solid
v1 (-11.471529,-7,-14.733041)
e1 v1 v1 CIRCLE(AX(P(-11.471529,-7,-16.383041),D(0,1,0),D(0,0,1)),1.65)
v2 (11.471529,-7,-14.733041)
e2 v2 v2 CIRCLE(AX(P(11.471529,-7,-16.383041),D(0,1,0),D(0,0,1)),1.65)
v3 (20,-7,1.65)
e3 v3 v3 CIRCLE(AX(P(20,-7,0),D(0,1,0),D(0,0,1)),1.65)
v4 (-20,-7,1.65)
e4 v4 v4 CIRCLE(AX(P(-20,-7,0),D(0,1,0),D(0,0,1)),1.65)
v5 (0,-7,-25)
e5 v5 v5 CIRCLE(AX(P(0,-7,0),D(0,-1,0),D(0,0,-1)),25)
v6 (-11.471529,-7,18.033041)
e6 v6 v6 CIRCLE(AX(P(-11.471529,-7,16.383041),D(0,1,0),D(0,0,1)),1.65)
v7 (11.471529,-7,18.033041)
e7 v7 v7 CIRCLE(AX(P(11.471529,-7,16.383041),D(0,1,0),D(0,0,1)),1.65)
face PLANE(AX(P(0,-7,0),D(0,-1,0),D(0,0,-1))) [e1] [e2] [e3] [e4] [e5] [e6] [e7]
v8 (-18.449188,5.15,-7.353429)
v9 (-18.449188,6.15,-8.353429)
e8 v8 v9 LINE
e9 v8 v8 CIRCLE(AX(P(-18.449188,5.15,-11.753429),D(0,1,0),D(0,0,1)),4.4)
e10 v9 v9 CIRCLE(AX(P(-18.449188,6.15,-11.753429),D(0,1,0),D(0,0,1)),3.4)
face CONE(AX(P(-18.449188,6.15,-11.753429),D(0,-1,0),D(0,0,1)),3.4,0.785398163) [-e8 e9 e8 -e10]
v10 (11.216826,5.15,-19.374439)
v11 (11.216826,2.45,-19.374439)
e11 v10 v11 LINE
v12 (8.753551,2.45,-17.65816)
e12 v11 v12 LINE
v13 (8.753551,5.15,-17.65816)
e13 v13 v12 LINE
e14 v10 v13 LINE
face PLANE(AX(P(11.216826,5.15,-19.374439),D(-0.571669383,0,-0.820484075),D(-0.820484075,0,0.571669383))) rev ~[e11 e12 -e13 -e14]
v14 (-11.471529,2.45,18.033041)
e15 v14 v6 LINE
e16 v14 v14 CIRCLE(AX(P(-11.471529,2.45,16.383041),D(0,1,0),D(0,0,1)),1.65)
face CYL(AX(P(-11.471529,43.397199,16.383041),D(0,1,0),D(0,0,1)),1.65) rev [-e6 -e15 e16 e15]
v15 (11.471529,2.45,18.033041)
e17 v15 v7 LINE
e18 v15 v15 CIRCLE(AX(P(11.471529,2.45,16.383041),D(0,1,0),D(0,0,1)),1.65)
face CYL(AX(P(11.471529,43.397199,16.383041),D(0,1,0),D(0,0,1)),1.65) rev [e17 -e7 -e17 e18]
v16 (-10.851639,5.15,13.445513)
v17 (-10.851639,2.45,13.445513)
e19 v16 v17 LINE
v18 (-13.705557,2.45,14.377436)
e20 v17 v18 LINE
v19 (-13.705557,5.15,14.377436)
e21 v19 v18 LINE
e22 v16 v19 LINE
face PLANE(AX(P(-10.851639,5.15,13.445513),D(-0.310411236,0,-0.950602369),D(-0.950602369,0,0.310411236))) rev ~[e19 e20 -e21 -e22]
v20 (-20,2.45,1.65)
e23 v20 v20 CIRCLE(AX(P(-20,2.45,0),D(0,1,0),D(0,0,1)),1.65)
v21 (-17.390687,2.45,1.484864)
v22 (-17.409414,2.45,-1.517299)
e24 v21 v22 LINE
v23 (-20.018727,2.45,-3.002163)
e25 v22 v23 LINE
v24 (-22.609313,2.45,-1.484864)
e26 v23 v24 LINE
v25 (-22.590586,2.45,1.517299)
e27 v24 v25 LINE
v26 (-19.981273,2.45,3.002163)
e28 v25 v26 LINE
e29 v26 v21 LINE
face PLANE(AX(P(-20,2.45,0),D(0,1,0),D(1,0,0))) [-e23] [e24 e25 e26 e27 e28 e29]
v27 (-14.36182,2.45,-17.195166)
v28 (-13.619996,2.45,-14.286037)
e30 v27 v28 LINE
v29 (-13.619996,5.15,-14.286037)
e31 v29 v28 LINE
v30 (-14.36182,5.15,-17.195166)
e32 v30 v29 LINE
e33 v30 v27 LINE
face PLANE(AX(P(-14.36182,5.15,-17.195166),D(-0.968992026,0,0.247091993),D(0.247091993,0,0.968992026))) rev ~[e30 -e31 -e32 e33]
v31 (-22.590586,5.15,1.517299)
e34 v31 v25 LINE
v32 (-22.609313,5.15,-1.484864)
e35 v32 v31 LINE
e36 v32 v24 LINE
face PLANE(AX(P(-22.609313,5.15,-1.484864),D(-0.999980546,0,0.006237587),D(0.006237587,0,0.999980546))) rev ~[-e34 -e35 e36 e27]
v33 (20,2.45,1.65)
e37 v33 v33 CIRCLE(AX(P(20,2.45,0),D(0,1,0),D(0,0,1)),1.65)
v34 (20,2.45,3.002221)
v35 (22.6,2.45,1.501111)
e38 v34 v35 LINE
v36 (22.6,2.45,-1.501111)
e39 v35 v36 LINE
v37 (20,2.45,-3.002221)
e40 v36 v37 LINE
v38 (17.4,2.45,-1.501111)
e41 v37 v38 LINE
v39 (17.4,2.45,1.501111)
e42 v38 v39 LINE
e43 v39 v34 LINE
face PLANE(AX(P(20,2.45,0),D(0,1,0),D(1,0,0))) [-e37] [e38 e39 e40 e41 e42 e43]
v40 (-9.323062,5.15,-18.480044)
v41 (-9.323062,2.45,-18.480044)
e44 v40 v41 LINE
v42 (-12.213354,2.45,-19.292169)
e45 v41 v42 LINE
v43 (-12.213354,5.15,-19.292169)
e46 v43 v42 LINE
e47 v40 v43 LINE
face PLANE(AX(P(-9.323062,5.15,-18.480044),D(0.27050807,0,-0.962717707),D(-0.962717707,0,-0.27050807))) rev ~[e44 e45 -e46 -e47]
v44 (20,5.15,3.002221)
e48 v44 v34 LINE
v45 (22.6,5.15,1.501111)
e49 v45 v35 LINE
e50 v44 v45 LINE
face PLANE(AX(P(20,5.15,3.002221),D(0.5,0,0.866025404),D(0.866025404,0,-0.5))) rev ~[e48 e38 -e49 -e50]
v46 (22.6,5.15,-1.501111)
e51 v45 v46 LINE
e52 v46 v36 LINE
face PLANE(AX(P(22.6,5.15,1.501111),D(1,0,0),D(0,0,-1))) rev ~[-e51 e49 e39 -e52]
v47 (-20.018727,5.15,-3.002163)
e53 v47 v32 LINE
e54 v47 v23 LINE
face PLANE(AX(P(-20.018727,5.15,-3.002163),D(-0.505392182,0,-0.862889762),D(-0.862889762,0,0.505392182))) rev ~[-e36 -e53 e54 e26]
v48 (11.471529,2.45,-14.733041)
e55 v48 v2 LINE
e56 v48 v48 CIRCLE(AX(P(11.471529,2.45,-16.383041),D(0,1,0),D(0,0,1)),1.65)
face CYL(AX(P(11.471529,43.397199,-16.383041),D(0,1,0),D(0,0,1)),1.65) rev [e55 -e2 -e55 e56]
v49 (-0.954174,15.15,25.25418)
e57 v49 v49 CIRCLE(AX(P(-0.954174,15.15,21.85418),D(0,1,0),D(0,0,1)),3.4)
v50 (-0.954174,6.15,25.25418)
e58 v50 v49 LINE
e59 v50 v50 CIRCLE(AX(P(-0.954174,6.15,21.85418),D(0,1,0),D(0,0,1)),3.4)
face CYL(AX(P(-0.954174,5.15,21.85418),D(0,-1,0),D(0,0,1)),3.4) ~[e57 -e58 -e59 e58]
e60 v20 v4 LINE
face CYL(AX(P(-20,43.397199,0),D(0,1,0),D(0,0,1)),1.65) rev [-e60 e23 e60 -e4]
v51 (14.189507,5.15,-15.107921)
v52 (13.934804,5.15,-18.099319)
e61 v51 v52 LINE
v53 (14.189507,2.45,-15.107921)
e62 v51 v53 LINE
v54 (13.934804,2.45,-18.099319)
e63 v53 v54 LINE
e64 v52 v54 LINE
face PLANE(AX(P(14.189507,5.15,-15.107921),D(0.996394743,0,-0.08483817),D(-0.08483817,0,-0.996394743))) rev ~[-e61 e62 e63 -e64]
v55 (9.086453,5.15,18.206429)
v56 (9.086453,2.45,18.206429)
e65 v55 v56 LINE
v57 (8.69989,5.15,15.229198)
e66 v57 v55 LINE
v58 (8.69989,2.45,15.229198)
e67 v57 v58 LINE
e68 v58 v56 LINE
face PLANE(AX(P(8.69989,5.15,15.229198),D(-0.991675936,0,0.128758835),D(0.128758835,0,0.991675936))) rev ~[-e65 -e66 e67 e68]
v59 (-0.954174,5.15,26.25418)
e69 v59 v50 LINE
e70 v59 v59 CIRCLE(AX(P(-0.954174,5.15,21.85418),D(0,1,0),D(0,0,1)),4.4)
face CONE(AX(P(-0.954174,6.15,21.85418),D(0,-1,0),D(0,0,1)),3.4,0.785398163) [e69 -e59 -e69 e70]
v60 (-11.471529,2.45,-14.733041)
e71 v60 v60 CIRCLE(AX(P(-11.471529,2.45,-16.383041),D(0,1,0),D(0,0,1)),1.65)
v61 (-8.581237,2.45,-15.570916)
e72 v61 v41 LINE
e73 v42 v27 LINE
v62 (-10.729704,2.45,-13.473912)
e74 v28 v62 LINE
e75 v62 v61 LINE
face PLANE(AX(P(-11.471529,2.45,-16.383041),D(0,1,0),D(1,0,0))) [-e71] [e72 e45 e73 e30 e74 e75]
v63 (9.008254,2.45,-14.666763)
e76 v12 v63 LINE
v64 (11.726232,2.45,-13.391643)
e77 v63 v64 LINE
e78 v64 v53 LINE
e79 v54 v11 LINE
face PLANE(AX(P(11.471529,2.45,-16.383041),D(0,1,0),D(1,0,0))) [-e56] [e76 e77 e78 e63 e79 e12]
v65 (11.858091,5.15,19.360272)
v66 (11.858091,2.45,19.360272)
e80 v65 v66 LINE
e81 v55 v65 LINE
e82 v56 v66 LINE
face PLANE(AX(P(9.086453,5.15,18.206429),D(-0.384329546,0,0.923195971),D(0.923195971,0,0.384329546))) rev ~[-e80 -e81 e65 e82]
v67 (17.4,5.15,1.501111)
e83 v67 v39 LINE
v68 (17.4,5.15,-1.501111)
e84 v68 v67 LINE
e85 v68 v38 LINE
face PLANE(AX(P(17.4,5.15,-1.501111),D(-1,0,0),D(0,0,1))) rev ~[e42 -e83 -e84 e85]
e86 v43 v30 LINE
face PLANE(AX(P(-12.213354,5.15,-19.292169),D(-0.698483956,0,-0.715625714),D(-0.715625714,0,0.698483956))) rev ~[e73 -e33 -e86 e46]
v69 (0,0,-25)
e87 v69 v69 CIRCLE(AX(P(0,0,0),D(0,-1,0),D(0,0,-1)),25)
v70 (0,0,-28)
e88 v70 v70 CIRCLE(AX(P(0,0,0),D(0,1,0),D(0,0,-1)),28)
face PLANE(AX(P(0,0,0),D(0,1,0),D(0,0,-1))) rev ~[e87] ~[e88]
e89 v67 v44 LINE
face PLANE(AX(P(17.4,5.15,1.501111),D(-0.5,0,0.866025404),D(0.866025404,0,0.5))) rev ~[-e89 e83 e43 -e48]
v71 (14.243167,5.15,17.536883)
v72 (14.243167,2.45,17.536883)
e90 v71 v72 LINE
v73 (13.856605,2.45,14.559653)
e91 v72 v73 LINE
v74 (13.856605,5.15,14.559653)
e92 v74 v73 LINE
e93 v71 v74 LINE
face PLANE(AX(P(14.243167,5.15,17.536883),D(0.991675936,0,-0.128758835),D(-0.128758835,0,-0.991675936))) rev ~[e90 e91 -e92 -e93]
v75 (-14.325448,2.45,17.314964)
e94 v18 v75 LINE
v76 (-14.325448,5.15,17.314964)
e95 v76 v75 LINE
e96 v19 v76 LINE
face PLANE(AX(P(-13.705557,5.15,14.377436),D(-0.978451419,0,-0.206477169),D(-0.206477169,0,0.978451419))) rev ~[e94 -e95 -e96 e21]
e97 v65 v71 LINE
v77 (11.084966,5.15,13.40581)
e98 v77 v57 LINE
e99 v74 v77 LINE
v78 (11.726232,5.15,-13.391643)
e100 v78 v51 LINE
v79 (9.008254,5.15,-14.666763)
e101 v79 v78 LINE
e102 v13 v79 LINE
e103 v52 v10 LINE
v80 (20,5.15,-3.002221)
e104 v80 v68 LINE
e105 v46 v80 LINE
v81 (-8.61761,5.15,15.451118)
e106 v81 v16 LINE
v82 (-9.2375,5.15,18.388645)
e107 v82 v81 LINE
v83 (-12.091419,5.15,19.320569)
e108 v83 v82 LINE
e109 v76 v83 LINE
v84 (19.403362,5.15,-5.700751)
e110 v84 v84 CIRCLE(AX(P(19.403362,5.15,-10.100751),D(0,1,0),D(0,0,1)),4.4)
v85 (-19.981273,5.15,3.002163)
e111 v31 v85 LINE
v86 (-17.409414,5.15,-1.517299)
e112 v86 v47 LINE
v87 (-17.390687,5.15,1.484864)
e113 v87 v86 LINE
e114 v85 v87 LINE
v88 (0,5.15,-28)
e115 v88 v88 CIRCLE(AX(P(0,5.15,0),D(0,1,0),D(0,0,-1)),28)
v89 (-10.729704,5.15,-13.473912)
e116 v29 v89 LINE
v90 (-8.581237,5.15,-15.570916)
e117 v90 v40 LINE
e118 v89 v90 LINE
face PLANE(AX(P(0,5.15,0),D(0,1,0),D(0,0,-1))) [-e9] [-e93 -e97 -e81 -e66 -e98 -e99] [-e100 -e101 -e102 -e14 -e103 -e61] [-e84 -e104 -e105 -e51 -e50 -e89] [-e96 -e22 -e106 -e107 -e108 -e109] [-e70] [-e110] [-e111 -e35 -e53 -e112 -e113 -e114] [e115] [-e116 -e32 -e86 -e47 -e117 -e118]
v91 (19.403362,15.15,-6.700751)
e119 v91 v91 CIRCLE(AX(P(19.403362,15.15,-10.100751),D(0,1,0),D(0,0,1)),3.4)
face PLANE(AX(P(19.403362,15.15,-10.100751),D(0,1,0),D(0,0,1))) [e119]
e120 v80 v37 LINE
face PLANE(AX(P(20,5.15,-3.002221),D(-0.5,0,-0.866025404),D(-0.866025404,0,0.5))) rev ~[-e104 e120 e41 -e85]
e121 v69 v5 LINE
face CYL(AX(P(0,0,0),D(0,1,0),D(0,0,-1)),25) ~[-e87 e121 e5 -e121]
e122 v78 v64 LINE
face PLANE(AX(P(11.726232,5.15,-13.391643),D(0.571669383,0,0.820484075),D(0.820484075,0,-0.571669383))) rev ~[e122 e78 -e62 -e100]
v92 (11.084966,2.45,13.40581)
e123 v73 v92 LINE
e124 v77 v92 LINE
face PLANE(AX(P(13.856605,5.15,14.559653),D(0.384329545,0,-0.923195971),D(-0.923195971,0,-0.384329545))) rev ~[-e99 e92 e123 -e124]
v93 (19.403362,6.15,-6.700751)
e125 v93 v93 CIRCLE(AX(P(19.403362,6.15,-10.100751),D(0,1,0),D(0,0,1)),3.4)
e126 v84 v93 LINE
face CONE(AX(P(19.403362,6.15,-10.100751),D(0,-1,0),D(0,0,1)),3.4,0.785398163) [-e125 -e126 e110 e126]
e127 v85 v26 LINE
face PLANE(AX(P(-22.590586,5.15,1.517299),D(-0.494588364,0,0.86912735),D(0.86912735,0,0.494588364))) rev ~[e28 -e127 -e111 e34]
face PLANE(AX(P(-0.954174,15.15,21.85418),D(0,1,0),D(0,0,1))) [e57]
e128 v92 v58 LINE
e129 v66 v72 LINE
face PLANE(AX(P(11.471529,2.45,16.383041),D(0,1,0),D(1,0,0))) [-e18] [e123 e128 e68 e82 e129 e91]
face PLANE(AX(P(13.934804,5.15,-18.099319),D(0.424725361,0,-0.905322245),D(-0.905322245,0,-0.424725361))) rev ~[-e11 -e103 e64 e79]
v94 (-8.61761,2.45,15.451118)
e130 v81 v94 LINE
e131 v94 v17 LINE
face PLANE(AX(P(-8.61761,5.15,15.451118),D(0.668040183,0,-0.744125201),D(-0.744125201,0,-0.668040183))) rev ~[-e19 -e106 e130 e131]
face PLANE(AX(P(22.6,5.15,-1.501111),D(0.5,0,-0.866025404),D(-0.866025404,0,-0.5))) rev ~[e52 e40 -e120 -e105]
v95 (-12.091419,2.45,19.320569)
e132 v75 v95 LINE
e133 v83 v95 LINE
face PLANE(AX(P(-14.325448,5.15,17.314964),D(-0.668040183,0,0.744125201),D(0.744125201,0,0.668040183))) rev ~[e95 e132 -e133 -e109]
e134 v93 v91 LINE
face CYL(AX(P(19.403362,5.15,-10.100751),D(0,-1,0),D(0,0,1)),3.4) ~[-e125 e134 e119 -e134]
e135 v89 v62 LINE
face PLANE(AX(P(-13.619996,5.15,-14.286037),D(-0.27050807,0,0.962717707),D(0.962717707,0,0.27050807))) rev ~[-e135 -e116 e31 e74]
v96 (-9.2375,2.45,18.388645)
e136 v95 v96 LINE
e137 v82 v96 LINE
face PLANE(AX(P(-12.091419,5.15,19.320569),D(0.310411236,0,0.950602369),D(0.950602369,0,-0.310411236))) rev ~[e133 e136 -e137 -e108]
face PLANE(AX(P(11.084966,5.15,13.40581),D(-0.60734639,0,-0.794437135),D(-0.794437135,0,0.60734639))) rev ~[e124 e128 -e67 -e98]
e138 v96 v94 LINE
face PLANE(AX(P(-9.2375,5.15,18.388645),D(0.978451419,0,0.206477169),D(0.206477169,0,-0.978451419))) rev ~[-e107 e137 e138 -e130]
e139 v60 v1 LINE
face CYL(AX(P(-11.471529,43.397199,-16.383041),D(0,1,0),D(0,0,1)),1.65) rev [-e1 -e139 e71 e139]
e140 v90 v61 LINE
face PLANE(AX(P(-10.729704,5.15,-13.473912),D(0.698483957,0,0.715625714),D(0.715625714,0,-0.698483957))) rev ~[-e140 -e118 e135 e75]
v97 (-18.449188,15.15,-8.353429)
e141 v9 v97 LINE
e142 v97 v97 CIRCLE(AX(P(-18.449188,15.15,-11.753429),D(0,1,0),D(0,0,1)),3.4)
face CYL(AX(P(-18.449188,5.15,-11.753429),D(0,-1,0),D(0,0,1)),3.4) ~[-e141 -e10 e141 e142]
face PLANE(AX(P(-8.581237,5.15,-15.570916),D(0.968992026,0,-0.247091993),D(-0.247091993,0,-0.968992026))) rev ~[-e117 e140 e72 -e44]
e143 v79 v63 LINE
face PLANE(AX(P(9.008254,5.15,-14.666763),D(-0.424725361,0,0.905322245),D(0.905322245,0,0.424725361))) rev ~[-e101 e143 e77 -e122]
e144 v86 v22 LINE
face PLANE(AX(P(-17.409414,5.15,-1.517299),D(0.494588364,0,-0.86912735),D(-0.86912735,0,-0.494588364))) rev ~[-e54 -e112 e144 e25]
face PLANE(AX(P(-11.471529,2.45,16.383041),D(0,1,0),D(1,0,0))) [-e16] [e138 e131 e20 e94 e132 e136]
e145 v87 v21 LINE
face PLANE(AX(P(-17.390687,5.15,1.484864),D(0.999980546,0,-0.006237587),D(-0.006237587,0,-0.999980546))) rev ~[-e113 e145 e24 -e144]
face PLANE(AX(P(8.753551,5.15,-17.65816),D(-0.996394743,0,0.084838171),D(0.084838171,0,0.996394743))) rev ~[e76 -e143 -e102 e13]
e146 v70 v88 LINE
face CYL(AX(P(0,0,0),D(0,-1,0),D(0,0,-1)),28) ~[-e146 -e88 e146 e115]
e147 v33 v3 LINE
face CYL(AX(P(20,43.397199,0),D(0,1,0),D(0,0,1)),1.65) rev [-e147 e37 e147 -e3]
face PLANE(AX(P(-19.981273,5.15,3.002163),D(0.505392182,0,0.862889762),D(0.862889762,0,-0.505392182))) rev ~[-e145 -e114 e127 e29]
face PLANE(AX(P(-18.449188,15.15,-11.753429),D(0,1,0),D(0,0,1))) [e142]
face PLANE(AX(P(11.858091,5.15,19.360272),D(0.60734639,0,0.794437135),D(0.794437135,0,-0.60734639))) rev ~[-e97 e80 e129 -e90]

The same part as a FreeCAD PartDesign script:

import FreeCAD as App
import Part
import Sketcher
from FreeCAD import Vector
Q = App.Units.Quantity


def edges_at(feature, points):
    """Names of the edges that pass closest to the given points."""
    edges = feature.Shape.Edges
    near = lambda p: min(range(len(edges)), key=lambda i: edges[i].distToShape(Part.Vertex(*p))[0])
    return sorted({f"Edge{near(p) + 1}" for p in points})


def add_polygon(sketch, points):
    """Adds a closed chain of lines whose ends are joined by coincident constraints."""
    first, n = sketch.GeometryCount, len(points)
    for a, b in zip(points, points[1:] + points[:1]):
        sketch.addGeometry(Part.LineSegment(App.Vector(*a, 0), App.Vector(*b, 0)), False)
    for i in range(n):
        sketch.addConstraint(Sketcher.Constraint("Coincident", first + i, 2, first + (i + 1) % n, 1))

doc = App.newDocument("Part")
body = doc.addObject("PartDesign::Body", "Body")

# Sketch on XZ plane
sketch1 = doc.addObject("Sketcher::SketchObject", "Sketch")
body.addObject(sketch1)
sketch1.AttachmentSupport = (doc.XZ_Plane, [""])
sketch1.MapMode = "FlatFace"
sketch1.addGeometry(Part.Circle(Vector(0, 0, 0), Vector(0, 0, 1), 28), False)
sketch1.addConstraint([
    Sketcher.Constraint("Coincident", 0, 3, -1, 1),
    Sketcher.Constraint("Diameter", 0, 56.0),
])
pad1 = doc.addObject("PartDesign::Pad", "Pad")
body.addObject(pad1)
pad1.Profile = sketch1
pad1.Length = 5.15
pad1.Reversed = True

# Sketch on XZ plane
sketch2 = doc.addObject("Sketcher::SketchObject", "Sketch001")
body.addObject(sketch2)
sketch2.AttachmentSupport = (doc.XZ_Plane, [""])
sketch2.MapMode = "FlatFace"
sketch2.addGeometry(Part.Circle(Vector(0, 0, 0), Vector(0, 0, 1), 25), False)
sketch2.addConstraint([
    Sketcher.Constraint("Coincident", 0, 3, -1, 1),
    Sketcher.Constraint("Diameter", 0, 50.0),
])
pad2 = doc.addObject("PartDesign::Pad", "Pad001")
body.addObject(pad2)
pad2.Profile = sketch2
pad2.Length = 7

# Sketch on XZ plane
sketch3 = doc.addObject("Sketcher::SketchObject", "Sketch002")
body.addObject(sketch3)
sketch3.AttachmentSupport = (doc.XZ_Plane, [""])
sketch3.MapMode = "FlatFace"
sketch3.AttachmentOffset = App.Placement(Vector(0, 0, -5.15), App.Rotation())
sketch3.addGeometry([
    Part.Circle(Vector(-0.954174, 21.85418, 0), Vector(0, 0, 1), 3.4),
    Part.Circle(Vector(-18.449188, -11.753429, 0), Vector(0, 0, 1), 3.4),
    Part.Circle(Vector(19.403362, -10.100751, 0), Vector(0, 0, 1), 3.4),
], False)
sketch3.addConstraint([
    Sketcher.Constraint("Equal", 0, 1),
    Sketcher.Constraint("Equal", 1, 2),
    Sketcher.Constraint("Diameter", 0, 6.8),
    Sketcher.Constraint("DistanceY", -1, 1, 0, 3, 21.85418),
    Sketcher.Constraint("DistanceY", 1, 3, -1, 1, 11.753429),
    Sketcher.Constraint("DistanceX", -1, 1, 2, 3, 19.403362),
    Sketcher.Constraint("DistanceY", 2, 3, -1, 1, 10.100751),
    Sketcher.Constraint("DistanceX", 1, 3, 2, 3, 37.85255),
    Sketcher.Constraint("DistanceX", 0, 3, -1, 1, 0.954174),
])
pad3 = doc.addObject("PartDesign::Pad", "Pad002")
body.addObject(pad3)
pad3.Profile = sketch3
pad3.Length = 10
pad3.Reversed = True

# Sketch on XZ plane
sketch4 = doc.addObject("Sketcher::SketchObject", "Sketch003")
body.addObject(sketch4)
sketch4.AttachmentSupport = (doc.XZ_Plane, [""])
sketch4.MapMode = "FlatFace"
sketch4.addGeometry([
    Part.Circle(Vector(20, 0, 0), Vector(0, 0, 1), 1.65),  # 0
    Part.Circle(Vector(-20, 0, 0), Vector(0, 0, 1), 1.65),  # 1
    Part.Circle(Vector(11.471529, 16.383041, 0), Vector(0, 0, 1), 1.65),  # 2
    Part.Circle(Vector(-11.471529, -16.383041, 0), Vector(0, 0, 1), 1.65),  # 3
    Part.Circle(Vector(11.471529, -16.383041, 0), Vector(0, 0, 1), 1.65),  # 4
    Part.Circle(Vector(-11.471529, 16.383041, 0), Vector(0, 0, 1), 1.65),  # 5
], False)
sketch4.addConstraint([
    Sketcher.Constraint("Equal", 0, 1),
    Sketcher.Constraint("Equal", 1, 2),
    Sketcher.Constraint("Equal", 2, 3),
    Sketcher.Constraint("Equal", 3, 4),
    Sketcher.Constraint("Equal", 4, 5),
    Sketcher.Constraint("Symmetric", 0, 3, 1, 3, -1, 1),
    Sketcher.Constraint("Symmetric", 2, 3, 3, 3, -1, 1),
    Sketcher.Constraint("Symmetric", 4, 3, 5, 3, -1, 1),
    Sketcher.Constraint("Symmetric", 3, 3, 4, 3, -2),
    Sketcher.Constraint("PointOnObject", 0, 3, -1),
    Sketcher.Constraint("Diameter", 0, 3.3),
    Sketcher.Constraint("DistanceX", -1, 1, 0, 3, 20.0),
    Sketcher.Constraint("DistanceX", -1, 1, 2, 3, 11.471529),
    Sketcher.Constraint("DistanceY", -1, 1, 2, 3, 16.383041),
])
pocket1 = doc.addObject("PartDesign::Pocket", "Pocket")
body.addObject(pocket1)
pocket1.Profile = sketch4
pocket1.Type = "ThroughAll"
pocket1.Midplane = True

# Sketch on XZ plane
sketch5 = doc.addObject("Sketcher::SketchObject", "Sketch004")
body.addObject(sketch5)
sketch5.AttachmentSupport = (doc.XZ_Plane, [""])
sketch5.MapMode = "FlatFace"
sketch5.AttachmentOffset = App.Placement(Vector(0, 0, -5.15), App.Rotation())
add_polygon(sketch5, [(11.858091, 19.360272), (14.243167, 17.536883), (13.856605, 14.559653), (11.084966, 13.40581), (8.69989, 15.229198), (9.086453, 18.206429)])  # lines 0-5
add_polygon(sketch5, [(-12.091419, 19.320569), (-9.2375, 18.388645), (-8.61761, 15.451118), (-10.851639, 13.445513), (-13.705557, 14.377436), (-14.325448, 17.314964)])  # lines 6-11
add_polygon(sketch5, [(-22.590586, 1.517299), (-19.981273, 3.002163), (-17.390687, 1.484864), (-17.409414, -1.517299), (-20.018727, -3.002163), (-22.609313, -1.484864)])  # lines 12-17
add_polygon(sketch5, [(20, 3.002221), (22.6, 1.501111), (22.6, -1.501111), (20, -3.002221), (17.4, -1.501111), (17.4, 1.501111)])  # lines 18-23
add_polygon(sketch5, [(9.008254, -14.666763), (11.726232, -13.391643), (14.189507, -15.107921), (13.934804, -18.099319), (11.216826, -19.374439), (8.753551, -17.65816)])  # lines 24-29
add_polygon(sketch5, [(-10.729704, -13.473912), (-8.581237, -15.570916), (-9.323062, -18.480044), (-12.213354, -19.292169), (-14.36182, -17.195166), (-13.619996, -14.286037)])  # lines 30-35
sketch5.addConstraint([
    Sketcher.Constraint("Vertical", 19),
    Sketcher.Constraint("Vertical", 22),
    Sketcher.Constraint("Symmetric", 20, 2, 23, 2, -1),
    Sketcher.Constraint("Parallel", 0, 3),
    Sketcher.Constraint("Parallel", 1, 4),
    Sketcher.Constraint("Parallel", 2, 5),
    Sketcher.Constraint("Parallel", 6, 9),
    Sketcher.Constraint("Parallel", 7, 10),
    Sketcher.Constraint("Parallel", 8, 11),
    Sketcher.Constraint("Parallel", 12, 15),
    Sketcher.Constraint("Parallel", 13, 16),
    Sketcher.Constraint("Parallel", 14, 17),
    Sketcher.Constraint("Parallel", 18, 21),
    Sketcher.Constraint("Parallel", 20, 23),
    Sketcher.Constraint("Parallel", 24, 27),
    Sketcher.Constraint("Parallel", 25, 28),
    Sketcher.Constraint("Parallel", 26, 29),
    Sketcher.Constraint("Parallel", 30, 33),
    Sketcher.Constraint("Parallel", 31, 34),
    Sketcher.Constraint("Parallel", 32, 35),
    Sketcher.Constraint("Horizontal", 19, 2, 21, 2),
    Sketcher.Constraint("Horizontal", 18, 2, 22, 2),
    Sketcher.Constraint("Equal", 0, 1),
    Sketcher.Constraint("Equal", 1, 2),
    Sketcher.Constraint("Equal", 2, 3),
    Sketcher.Constraint("Equal", 5, 6),
    Sketcher.Constraint("Equal", 6, 7),
    Sketcher.Constraint("Equal", 7, 8),
    Sketcher.Constraint("Equal", 8, 9),
    Sketcher.Constraint("Equal", 11, 12),
    Sketcher.Constraint("Equal", 12, 13),
    Sketcher.Constraint("Equal", 13, 14),
    Sketcher.Constraint("Equal", 14, 15),
    Sketcher.Constraint("Equal", 17, 18),
    Sketcher.Constraint("Equal", 23, 24),
    Sketcher.Constraint("Equal", 24, 25),
    Sketcher.Constraint("Equal", 25, 26),
    Sketcher.Constraint("Equal", 26, 27),
    Sketcher.Constraint("Equal", 29, 30),
    Sketcher.Constraint("Equal", 30, 31),
    Sketcher.Constraint("Equal", 31, 32),
    Sketcher.Constraint("Equal", 32, 33),
    Sketcher.Constraint("Angle", 18, Q("-30 deg")),
    Sketcher.Constraint("DistanceX", -1, 1, 20, 2, 20.0),
    Sketcher.Constraint("DistanceX", -1, 1, 18, 2, 22.6),
    Sketcher.Constraint("DistanceY", 19, 2, 19, 1, 3.002221),
    Sketcher.Constraint("DistanceY", -1, 1, 3, 2, 15.229198),
    Sketcher.Constraint("DistanceX", 6, 2, -1, 1, 9.2375),
    Sketcher.Constraint("DistanceY", 14, 2, -1, 1, 1.517299),
    Sketcher.Constraint("DistanceY", -1, 1, 17, 2, 1.517299),
    Sketcher.Constraint("DistanceX", 2, 2, 0, 2, 3.158201),
    Sketcher.Constraint("DistanceX", 7, 2, 3, 2, 17.3175),
    Sketcher.Constraint("DistanceY", 12, 2, 10, 2, 14.312801),
    Sketcher.Constraint("DistanceY", 13, 2, 12, 2, 1.517299),
    Sketcher.Constraint("DistanceY", 15, 2, 9, 2, 17.379599),
    Sketcher.Constraint("DistanceY", 18, 2, 2, 2, 11.904699),
    Sketcher.Constraint("DistanceY", 25, 2, 20, 2, 12.1057),
    Sketcher.Constraint("DistanceX", -1, 1, 3, 2, 8.69989),
    Sketcher.Constraint("DistanceY", -1, 1, 4, 2, 18.206429),
    Sketcher.Constraint("DistanceX", 8, 2, -1, 1, 10.851639),
    Sketcher.Constraint("DistanceX", 11, 2, -1, 1, 12.091419),
    Sketcher.Constraint("DistanceX", -1, 1, 24, 2, 11.726232),
    Sketcher.Constraint("DistanceY", 26, 2, -1, 1, 18.099319),
    Sketcher.Constraint("DistanceY", 27, 2, -1, 1, 19.374439),
    Sketcher.Constraint("DistanceY", 28, 2, -1, 1, 17.65816),
    Sketcher.Constraint("DistanceX", 31, 2, -1, 1, 9.323062),
    Sketcher.Constraint("DistanceY", 32, 2, -1, 1, 19.292169),
    Sketcher.Constraint("DistanceX", 33, 2, -1, 1, 14.36182),
    Sketcher.Constraint("DistanceX", 13, 2, 9, 2, 3.68513),
    Sketcher.Constraint("DistanceX", 15, 2, 30, 2, 11.43749),
    Sketcher.Constraint("DistanceY", 30, 2, 13, 2, 17.05578),
])
pocket2 = doc.addObject("PartDesign::Pocket", "Pocket001")
body.addObject(pocket2)
pocket2.Profile = sketch5
pocket2.Length = 2.7
pocket2.Reversed = True
doc.recompute()

chamfer = doc.addObject("PartDesign::Chamfer", "Chamfer")
body.addObject(chamfer)
chamfer.Base = (pocket2, edges_at(pocket2, [(-18.449, 5.15, -15.153), (-0.954, 5.15, 18.454), (19.403, 5.15, -13.501)]))
chamfer.Size = 1

doc.recompute()
